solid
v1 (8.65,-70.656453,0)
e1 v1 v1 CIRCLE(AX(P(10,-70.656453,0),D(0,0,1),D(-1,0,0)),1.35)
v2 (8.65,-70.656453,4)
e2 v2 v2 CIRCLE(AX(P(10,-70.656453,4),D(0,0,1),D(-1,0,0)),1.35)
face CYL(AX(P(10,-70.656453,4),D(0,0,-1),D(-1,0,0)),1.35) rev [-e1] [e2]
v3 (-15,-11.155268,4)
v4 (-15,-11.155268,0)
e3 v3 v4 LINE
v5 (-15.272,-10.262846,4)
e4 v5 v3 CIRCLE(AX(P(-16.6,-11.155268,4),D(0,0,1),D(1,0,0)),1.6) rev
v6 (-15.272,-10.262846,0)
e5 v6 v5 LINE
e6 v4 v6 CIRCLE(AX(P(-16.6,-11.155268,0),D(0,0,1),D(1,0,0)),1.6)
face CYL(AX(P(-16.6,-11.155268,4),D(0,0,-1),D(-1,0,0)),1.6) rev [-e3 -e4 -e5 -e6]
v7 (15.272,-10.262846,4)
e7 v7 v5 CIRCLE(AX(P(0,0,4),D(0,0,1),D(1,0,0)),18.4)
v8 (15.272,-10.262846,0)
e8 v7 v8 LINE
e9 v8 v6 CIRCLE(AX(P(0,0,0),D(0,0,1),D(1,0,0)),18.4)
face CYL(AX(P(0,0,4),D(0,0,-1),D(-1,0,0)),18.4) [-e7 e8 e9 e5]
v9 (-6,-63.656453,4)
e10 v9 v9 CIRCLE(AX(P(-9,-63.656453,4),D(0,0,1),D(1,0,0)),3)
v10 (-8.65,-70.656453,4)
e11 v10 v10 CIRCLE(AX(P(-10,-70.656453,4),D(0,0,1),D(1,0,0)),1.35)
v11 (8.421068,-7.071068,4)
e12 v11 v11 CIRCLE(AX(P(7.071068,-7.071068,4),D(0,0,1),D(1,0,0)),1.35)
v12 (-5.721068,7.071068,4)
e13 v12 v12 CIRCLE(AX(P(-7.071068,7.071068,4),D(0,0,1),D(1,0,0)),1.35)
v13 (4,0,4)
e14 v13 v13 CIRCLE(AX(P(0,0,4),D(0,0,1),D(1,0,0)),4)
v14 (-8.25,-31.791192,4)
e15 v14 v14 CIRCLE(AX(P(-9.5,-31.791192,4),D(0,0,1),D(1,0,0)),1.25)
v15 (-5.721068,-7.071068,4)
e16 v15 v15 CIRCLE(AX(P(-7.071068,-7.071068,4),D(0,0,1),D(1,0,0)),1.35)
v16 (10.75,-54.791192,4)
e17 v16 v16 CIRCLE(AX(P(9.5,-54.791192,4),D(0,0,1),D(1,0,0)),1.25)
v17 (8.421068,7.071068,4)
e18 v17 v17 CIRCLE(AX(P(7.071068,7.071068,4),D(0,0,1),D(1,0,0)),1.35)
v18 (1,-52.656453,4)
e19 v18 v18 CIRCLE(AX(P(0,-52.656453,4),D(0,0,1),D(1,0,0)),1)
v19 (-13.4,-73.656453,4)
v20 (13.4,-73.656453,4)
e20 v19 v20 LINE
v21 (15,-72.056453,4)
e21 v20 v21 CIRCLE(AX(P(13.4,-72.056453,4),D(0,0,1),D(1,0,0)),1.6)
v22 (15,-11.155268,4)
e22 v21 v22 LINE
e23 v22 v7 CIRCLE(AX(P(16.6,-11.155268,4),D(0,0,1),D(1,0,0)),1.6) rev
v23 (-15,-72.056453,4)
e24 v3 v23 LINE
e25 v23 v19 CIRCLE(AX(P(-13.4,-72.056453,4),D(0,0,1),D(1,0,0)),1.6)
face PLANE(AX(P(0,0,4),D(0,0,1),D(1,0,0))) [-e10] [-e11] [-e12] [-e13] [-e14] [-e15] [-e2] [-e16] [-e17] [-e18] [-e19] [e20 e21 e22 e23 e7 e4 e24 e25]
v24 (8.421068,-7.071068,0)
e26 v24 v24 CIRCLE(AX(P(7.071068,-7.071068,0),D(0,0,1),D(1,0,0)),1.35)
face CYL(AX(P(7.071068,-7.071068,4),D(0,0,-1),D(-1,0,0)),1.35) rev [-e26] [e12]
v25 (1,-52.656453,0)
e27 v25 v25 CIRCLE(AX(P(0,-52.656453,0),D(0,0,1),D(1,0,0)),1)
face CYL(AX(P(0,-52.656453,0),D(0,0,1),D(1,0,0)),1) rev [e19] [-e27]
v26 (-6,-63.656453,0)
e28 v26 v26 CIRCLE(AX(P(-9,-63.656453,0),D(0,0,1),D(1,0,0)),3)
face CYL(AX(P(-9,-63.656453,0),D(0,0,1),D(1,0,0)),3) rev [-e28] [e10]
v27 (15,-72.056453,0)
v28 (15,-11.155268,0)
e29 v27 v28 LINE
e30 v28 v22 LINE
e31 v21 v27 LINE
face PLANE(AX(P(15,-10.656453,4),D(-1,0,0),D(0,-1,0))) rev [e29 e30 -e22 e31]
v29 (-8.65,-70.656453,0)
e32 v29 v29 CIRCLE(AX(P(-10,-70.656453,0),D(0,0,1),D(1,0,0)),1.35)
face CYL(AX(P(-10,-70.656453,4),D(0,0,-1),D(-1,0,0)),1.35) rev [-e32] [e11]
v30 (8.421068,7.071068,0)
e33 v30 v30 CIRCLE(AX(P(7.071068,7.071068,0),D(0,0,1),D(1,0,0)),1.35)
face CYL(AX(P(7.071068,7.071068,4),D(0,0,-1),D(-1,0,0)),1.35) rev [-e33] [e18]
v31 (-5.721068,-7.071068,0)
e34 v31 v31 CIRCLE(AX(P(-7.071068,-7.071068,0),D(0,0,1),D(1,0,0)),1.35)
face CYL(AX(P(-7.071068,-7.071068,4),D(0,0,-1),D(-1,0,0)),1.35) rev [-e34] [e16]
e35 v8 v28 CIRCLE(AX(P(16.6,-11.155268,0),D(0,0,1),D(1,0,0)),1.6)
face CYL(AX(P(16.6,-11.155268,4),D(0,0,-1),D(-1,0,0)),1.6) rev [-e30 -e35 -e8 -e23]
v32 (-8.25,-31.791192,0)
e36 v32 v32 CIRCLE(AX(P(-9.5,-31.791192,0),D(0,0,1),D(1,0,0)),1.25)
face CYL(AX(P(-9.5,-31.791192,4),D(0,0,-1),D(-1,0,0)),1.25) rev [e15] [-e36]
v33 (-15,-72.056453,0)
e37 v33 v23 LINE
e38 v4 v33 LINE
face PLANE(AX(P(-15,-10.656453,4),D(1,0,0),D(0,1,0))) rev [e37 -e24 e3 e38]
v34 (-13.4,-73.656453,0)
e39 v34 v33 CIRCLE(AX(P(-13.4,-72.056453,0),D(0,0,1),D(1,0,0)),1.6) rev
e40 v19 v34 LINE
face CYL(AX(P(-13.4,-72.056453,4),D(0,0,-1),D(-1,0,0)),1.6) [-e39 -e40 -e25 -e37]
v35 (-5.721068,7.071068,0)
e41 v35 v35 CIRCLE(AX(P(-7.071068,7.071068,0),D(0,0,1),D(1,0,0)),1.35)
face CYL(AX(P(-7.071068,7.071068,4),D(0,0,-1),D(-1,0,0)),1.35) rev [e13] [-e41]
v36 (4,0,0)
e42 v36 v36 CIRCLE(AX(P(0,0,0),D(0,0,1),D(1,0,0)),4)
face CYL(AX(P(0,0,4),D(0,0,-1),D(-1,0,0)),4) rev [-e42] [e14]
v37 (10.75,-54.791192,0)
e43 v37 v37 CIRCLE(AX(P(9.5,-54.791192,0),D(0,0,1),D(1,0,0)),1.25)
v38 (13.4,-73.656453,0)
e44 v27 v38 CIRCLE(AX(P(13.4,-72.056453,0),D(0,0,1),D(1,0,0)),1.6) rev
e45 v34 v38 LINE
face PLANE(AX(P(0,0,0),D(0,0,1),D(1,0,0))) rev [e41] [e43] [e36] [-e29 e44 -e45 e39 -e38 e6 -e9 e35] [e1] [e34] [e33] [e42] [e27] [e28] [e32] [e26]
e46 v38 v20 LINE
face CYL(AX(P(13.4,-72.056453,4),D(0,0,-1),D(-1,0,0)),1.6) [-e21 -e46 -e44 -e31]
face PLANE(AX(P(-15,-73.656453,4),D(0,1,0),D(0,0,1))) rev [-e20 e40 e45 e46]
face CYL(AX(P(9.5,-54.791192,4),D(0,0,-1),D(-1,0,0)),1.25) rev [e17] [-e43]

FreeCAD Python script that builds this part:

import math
import FreeCAD as App
import Part
import Sketcher
from FreeCAD import Vector
Q = App.Units.Quantity


def edges_at(feature, points):
    """Names of the edges that pass closest to the given points."""
    edges = feature.Shape.Edges
    near = lambda p: min(range(len(edges)), key=lambda i: edges[i].distToShape(Part.Vertex(*p))[0])
    return sorted({f"Edge{near(p) + 1}" for p in points})

doc = App.newDocument("Part")
params = doc.addObject("Spreadsheet::Sheet", "Params")
for row, (alias, value) in enumerate([
    ("sketch1_diameter", "8 mm"),
    ("sketch1_diameter2", "2.7 mm"),
    ("sketch1_diameter3", "2.5 mm"),
    ("sketch1_radius", "18.4 mm"),
    ("sketch1_width", "30 mm"),
    ("pad1_length", "4 mm"),
    ("fillet_radius", "1.6 mm"),
    ("sketch2_diameter", "2 mm"),
    ("sketch2_diameter2", "6 mm"),
    ("pocket1_length", "4 mm"),
], start=1):
    params.set(f"A{row}", alias)
    params.set(f"B{row}", "=" + value)
    params.setAlias(f"B{row}", alias)

body = doc.addObject("PartDesign::Body", "Body")

# Sketch on XY plane
sketch1 = body.newObject("Sketcher::SketchObject", "Sketch")
sketch1.AttachmentSupport = (doc.getObject("XY_Plane"), [""])
sketch1.MapMode = "FlatFace"
sketch1.addGeometry(Part.LineSegment(Vector(-15, -10.7, 0), Vector(-15, -73.7, 0)), False)
sketch1.addGeometry(Part.LineSegment(Vector(-15, -73.7, 0), Vector(15, -73.7, 0)), False)
sketch1.addGeometry(Part.LineSegment(Vector(15, -73.7, 0), Vector(15, -10.7, 0)), False)
sketch1.addGeometry(Part.ArcOfCircle(Part.Circle(Vector(0, 0, 0), Vector(0, 0, 1), 18.4), math.radians(-35), math.radians(215)), False)
sketch1.addGeometry(Part.Circle(Vector(-10, -70.7, 0), Vector(0, 0, 1), 1.4), False)
sketch1.addGeometry(Part.Circle(Vector(10, -70.7, 0), Vector(0, 0, 1), 1.4), False)
sketch1.addGeometry(Part.Circle(Vector(9.5, -54.8, 0), Vector(0, 0, 1), 1.2), False)
sketch1.addGeometry(Part.Circle(Vector(-9.5, -31.8, 0), Vector(0, 0, 1), 1.2), False)
sketch1.addGeometry(Part.Circle(Vector(-7.1, -7.1, 0), Vector(0, 0, 1), 1.4), False)
sketch1.addGeometry(Part.Circle(Vector(-7.1, 7.1, 0), Vector(0, 0, 1), 1.4), False)
sketch1.addGeometry(Part.Circle(Vector(0, 0, 0), Vector(0, 0, 1), 4), False)
sketch1.addGeometry(Part.Circle(Vector(7.1, -7.1, 0), Vector(0, 0, 1), 1.4), False)
sketch1.addGeometry(Part.Circle(Vector(7.1, 7.1, 0), Vector(0, 0, 1), 1.4), False)
sketch1.addConstraint(Sketcher.Constraint("Coincident", 0, 2, 1, 1))
sketch1.addConstraint(Sketcher.Constraint("Coincident", 1, 2, 2, 1))
sketch1.addConstraint(Sketcher.Constraint("Coincident", 2, 2, 3, 1))
sketch1.addConstraint(Sketcher.Constraint("Coincident", 3, 2, 0, 1))
sketch1.addConstraint(Sketcher.Constraint("Vertical", 0))
sketch1.addConstraint(Sketcher.Constraint("Horizontal", 1))
sketch1.addConstraint(Sketcher.Constraint("Vertical", 2))
sketch1.addConstraint(Sketcher.Constraint("Coincident", 3, 3, -1, 1))
sketch1.addConstraint(Sketcher.Constraint("Coincident", 10, 3, -1, 1))
sketch1.addConstraint(Sketcher.Constraint("Equal", 4, 5))
sketch1.addConstraint(Sketcher.Constraint("Equal", 6, 7))
sketch1.addConstraint(Sketcher.Constraint("Equal", 5, 8))
sketch1.addConstraint(Sketcher.Constraint("Equal", 8, 9))
sketch1.addConstraint(Sketcher.Constraint("Equal", 9, 11))
sketch1.addConstraint(Sketcher.Constraint("Equal", 11, 12))
sketch1.addConstraint(Sketcher.Constraint("Symmetric", 9, 3, 11, 3, -1, 1))
sketch1.addConstraint(Sketcher.Constraint("Symmetric", 8, 3, 12, 3, -1, 1))
sketch1.addConstraint(Sketcher.Constraint("Symmetric", 4, 3, 5, 3, -2))
sketch1.addConstraint(Sketcher.Constraint("Symmetric", 8, 3, 11, 3, -2))
sketch1.addConstraint(Sketcher.Constraint("Horizontal", 2, 2, 3, 2))
sketch1.addConstraint(Sketcher.Constraint("Diameter", 10, Q("8 mm")))
sketch1.addConstraint(Sketcher.Constraint("Diameter", 4, Q("2.7 mm")))
sketch1.addConstraint(Sketcher.Constraint("Diameter", 6, Q("2.5 mm")))
sketch1.addConstraint(Sketcher.Constraint("Radius", 3, Q("18.4 mm")))
sketch1.addConstraint(Sketcher.Constraint("DistanceX", 1, 1, 1, 2, Q("30 mm")))
sketch1.addConstraint(Sketcher.Constraint("DistanceY", 0, 2, 0, 1, Q("63 mm")))
sketch1.addConstraint(Sketcher.Constraint("DistanceX", 4, 3, -1, 1, Q("10 mm")))
sketch1.addConstraint(Sketcher.Constraint("DistanceX", 7, 3, 6, 3, Q("19 mm")))
sketch1.addConstraint(Sketcher.Constraint("DistanceY", 6, 3, 7, 3, Q("23 mm")))
sketch1.addConstraint(Sketcher.Constraint("DistanceY", 0, 2, 4, 3, Q("3 mm")))
sketch1.addConstraint(Sketcher.Constraint("DistanceX", -1, 1, 6, 3, Q("9.5 mm")))
sketch1.addConstraint(Sketcher.Constraint("DistanceY", 5, 3, 6, 3, Q("15.865261 mm")))
sketch1.addConstraint(Sketcher.Constraint("DistanceY", 7, 3, 9, 3, Q("38.86226 mm")))
sketch1.addConstraint(Sketcher.Constraint("DistanceX", 8, 3, -1, 1, Q("7.071068 mm")))
sketch1.setExpression("Constraints[20]", "Params.sketch1_diameter")
sketch1.setExpression("Constraints[21]", "Params.sketch1_diameter2")
sketch1.setExpression("Constraints[22]", "Params.sketch1_diameter3")
sketch1.setExpression("Constraints[23]", "Params.sketch1_radius")
sketch1.setExpression("Constraints[24]", "Params.sketch1_width")
pad1 = body.newObject("PartDesign::Pad", "Pad")
pad1.Profile = sketch1
pad1.setExpression("Length", "Params.pad1_length")
doc.recompute()

fillet = body.newObject("PartDesign::Fillet", "Fillet")
fillet.Base = (pad1, edges_at(pad1, [
    (15, -10.656, 2),
    (15, -73.656, 2),
    (-15, -73.656, 2),
    (-15, -10.656, 2),
]))
fillet.setExpression("Radius", "Params.fillet_radius")

# Sketch on XY plane
sketch2 = body.newObject("Sketcher::SketchObject", "Sketch001")
sketch2.AttachmentSupport = (doc.getObject("XY_Plane"), [""])
sketch2.MapMode = "FlatFace"
sketch2.AttachmentOffset = App.Placement(Vector(0, 0, 4), App.Rotation())
sketch2.addGeometry(Part.Circle(Vector(0, -52.7, 0), Vector(0, 0, 1), 1), False)
sketch2.addGeometry(Part.Circle(Vector(-9, -63.7, 0), Vector(0, 0, 1), 3), False)
sketch2.addConstraint(Sketcher.Constraint("PointOnObject", 0, 3, -2))
sketch2.addConstraint(Sketcher.Constraint("Diameter", 0, Q("2 mm")))
sketch2.addConstraint(Sketcher.Constraint("Diameter", 1, Q("6 mm")))
sketch2.addConstraint(Sketcher.Constraint("DistanceX", 1, 3, -1, 1, Q("9 mm")))
sketch2.addConstraint(Sketcher.Constraint("DistanceY", 1, 3, 0, 3, Q("11 mm")))
sketch2.addConstraint(Sketcher.Constraint("DistanceY", 0, 3, -1, 1, Q("52.656453 mm")))
sketch2.setExpression("Constraints[1]", "Params.sketch2_diameter")
sketch2.setExpression("Constraints[2]", "Params.sketch2_diameter2")
pocket1 = body.newObject("PartDesign::Pocket", "Pocket")
pocket1.Profile = sketch2
pocket1.setExpression("Length", "Params.pocket1_length")

doc.recompute()
